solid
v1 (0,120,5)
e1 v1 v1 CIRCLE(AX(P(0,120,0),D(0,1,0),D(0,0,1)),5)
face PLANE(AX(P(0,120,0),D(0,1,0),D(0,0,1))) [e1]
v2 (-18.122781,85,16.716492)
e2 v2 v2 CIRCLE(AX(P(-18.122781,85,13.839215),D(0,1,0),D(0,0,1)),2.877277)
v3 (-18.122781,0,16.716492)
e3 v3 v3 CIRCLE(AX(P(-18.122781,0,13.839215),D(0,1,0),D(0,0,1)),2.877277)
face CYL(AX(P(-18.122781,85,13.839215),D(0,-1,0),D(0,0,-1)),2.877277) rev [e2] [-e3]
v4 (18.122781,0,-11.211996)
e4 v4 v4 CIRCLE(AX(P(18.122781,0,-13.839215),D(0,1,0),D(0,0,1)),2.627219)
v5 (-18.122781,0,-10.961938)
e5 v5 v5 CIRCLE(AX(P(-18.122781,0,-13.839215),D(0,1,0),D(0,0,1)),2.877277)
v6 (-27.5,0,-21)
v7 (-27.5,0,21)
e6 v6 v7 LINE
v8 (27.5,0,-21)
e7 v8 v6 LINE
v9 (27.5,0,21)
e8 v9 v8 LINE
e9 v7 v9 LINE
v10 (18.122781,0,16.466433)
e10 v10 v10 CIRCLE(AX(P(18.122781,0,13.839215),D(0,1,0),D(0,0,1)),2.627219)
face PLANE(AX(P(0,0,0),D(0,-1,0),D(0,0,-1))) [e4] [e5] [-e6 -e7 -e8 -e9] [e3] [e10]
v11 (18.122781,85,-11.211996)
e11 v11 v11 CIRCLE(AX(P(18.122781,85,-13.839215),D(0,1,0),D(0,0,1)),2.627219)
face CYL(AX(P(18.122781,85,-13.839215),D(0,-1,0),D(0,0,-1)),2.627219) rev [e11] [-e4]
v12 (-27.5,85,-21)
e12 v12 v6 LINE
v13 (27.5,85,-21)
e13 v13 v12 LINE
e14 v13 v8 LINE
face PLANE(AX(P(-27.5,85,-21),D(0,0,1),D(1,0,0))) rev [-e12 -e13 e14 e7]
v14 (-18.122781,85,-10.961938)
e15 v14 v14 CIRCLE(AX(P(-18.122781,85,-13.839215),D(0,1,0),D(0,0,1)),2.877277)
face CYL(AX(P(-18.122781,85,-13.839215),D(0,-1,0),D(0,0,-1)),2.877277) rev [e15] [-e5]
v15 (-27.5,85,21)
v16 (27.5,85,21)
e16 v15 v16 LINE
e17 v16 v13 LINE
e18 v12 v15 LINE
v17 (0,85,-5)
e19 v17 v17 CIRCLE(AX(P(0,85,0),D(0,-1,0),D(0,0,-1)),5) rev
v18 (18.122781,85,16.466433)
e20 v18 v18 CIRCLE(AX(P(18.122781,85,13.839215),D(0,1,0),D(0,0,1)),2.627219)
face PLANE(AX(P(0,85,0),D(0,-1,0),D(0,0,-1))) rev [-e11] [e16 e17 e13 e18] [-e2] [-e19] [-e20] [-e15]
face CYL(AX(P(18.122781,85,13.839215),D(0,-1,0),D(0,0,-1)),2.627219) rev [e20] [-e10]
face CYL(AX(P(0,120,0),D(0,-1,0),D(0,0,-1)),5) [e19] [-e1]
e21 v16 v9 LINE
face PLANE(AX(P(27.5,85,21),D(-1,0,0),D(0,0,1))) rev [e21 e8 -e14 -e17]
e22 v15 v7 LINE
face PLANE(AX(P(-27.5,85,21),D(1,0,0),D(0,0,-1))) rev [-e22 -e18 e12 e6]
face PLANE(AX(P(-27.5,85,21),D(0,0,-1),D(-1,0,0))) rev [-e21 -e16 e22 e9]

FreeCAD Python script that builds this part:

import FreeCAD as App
import Part
import Sketcher
from FreeCAD import Vector
Q = App.Units.Quantity

doc = App.newDocument("Part")
params = doc.addObject("Spreadsheet::Sheet", "Params")
for row, (alias, value) in enumerate([
    ("sketch1_width", "55 mm"),
    ("sketch1_height", "42 mm"),
    ("pad1_length", "85 mm"),
    ("sketch2_diameter", "10 mm"),
    ("pad2_length", "120 mm"),
], start=1):
    params.set(f"A{row}", alias)
    params.set(f"B{row}", "=" + value)
    params.setAlias(f"B{row}", alias)

body = doc.addObject("PartDesign::Body", "Body")

# Sketch on XZ plane
sketch1 = body.newObject("Sketcher::SketchObject", "Sketch")
sketch1.AttachmentSupport = (doc.getObject("XZ_Plane"), [""])
sketch1.MapMode = "FlatFace"
sketch1.addGeometry([
    Part.LineSegment(Vector(-27.5, -21, 0), Vector(-27.5, 21, 0)),  # 0
    Part.LineSegment(Vector(-27.5, 21, 0), Vector(27.5, 21, 0)),  # 1
    Part.LineSegment(Vector(27.5, 21, 0), Vector(27.5, -21, 0)),  # 2
    Part.LineSegment(Vector(27.5, -21, 0), Vector(-27.5, -21, 0)),  # 3
    Part.Circle(Vector(-18.1, 13.8, 0), Vector(0, 0, 1), 2.9),  # 4
    Part.Circle(Vector(18.1, 13.8, 0), Vector(0, 0, 1), 2.6),  # 5
    Part.Circle(Vector(-18.1, -13.8, 0), Vector(0, 0, 1), 2.9),  # 6
    Part.Circle(Vector(18.1, -13.8, 0), Vector(0, 0, 1), 2.6),  # 7
], False)
sketch1.addConstraint([
    Sketcher.Constraint("Coincident", 0, 2, 1, 1),
    Sketcher.Constraint("Coincident", 1, 2, 2, 1),
    Sketcher.Constraint("Coincident", 2, 2, 3, 1),
    Sketcher.Constraint("Coincident", 3, 2, 0, 1),
    Sketcher.Constraint("Vertical", 0),
    Sketcher.Constraint("Horizontal", 1),
    Sketcher.Constraint("Vertical", 2),
    Sketcher.Constraint("Horizontal", 3),
    Sketcher.Constraint("Equal", 4, 6),
    Sketcher.Constraint("Equal", 5, 7),
    Sketcher.Constraint("Symmetric", 5, 3, 6, 3, -1, 1),
    Sketcher.Constraint("Symmetric", 4, 3, 7, 3, -1, 1),
    Sketcher.Constraint("Symmetric", 0, 2, 2, 2, -1, 1),
    Sketcher.Constraint("Symmetric", 4, 3, 5, 3, -2),
    Sketcher.Constraint("DistanceX", 1, 1, 1, 2, Q("55 mm")),
    Sketcher.Constraint("DistanceY", 0, 1, 0, 2, Q("42 mm")),
    Sketcher.Constraint("Diameter", 4, Q("5.754555 mm")),
    Sketcher.Constraint("Diameter", 5, Q("5.254437 mm")),
    Sketcher.Constraint("DistanceX", 4, 3, -1, 1, Q("18.122781 mm")),
    Sketcher.Constraint("DistanceY", 6, 3, 4, 3, Q("27.67843 mm")),
])
sketch1.setExpression("Constraints[14]", "Params.sketch1_width")
sketch1.setExpression("Constraints[15]", "Params.sketch1_height")
pad1 = body.newObject("PartDesign::Pad", "Pad")
pad1.Profile = sketch1
pad1.setExpression("Length", "Params.pad1_length")
pad1.Reversed = True

# Sketch on XZ plane
sketch2 = body.newObject("Sketcher::SketchObject", "Sketch001")
sketch2.AttachmentSupport = (doc.getObject("XZ_Plane"), [""])
sketch2.MapMode = "FlatFace"
sketch2.addGeometry(Part.Circle(Vector(0, 0, 0), Vector(0, 0, 1), 5), False)
sketch2.addConstraint([
    Sketcher.Constraint("Coincident", 0, 3, -1, 1),
    Sketcher.Constraint("Diameter", 0, Q("10 mm")),
])
sketch2.setExpression("Constraints[1]", "Params.sketch2_diameter")
pad2 = body.newObject("PartDesign::Pad", "Pad001")
pad2.Profile = sketch2
pad2.setExpression("Length", "Params.pad2_length")
pad2.Reversed = True

doc.recompute()
